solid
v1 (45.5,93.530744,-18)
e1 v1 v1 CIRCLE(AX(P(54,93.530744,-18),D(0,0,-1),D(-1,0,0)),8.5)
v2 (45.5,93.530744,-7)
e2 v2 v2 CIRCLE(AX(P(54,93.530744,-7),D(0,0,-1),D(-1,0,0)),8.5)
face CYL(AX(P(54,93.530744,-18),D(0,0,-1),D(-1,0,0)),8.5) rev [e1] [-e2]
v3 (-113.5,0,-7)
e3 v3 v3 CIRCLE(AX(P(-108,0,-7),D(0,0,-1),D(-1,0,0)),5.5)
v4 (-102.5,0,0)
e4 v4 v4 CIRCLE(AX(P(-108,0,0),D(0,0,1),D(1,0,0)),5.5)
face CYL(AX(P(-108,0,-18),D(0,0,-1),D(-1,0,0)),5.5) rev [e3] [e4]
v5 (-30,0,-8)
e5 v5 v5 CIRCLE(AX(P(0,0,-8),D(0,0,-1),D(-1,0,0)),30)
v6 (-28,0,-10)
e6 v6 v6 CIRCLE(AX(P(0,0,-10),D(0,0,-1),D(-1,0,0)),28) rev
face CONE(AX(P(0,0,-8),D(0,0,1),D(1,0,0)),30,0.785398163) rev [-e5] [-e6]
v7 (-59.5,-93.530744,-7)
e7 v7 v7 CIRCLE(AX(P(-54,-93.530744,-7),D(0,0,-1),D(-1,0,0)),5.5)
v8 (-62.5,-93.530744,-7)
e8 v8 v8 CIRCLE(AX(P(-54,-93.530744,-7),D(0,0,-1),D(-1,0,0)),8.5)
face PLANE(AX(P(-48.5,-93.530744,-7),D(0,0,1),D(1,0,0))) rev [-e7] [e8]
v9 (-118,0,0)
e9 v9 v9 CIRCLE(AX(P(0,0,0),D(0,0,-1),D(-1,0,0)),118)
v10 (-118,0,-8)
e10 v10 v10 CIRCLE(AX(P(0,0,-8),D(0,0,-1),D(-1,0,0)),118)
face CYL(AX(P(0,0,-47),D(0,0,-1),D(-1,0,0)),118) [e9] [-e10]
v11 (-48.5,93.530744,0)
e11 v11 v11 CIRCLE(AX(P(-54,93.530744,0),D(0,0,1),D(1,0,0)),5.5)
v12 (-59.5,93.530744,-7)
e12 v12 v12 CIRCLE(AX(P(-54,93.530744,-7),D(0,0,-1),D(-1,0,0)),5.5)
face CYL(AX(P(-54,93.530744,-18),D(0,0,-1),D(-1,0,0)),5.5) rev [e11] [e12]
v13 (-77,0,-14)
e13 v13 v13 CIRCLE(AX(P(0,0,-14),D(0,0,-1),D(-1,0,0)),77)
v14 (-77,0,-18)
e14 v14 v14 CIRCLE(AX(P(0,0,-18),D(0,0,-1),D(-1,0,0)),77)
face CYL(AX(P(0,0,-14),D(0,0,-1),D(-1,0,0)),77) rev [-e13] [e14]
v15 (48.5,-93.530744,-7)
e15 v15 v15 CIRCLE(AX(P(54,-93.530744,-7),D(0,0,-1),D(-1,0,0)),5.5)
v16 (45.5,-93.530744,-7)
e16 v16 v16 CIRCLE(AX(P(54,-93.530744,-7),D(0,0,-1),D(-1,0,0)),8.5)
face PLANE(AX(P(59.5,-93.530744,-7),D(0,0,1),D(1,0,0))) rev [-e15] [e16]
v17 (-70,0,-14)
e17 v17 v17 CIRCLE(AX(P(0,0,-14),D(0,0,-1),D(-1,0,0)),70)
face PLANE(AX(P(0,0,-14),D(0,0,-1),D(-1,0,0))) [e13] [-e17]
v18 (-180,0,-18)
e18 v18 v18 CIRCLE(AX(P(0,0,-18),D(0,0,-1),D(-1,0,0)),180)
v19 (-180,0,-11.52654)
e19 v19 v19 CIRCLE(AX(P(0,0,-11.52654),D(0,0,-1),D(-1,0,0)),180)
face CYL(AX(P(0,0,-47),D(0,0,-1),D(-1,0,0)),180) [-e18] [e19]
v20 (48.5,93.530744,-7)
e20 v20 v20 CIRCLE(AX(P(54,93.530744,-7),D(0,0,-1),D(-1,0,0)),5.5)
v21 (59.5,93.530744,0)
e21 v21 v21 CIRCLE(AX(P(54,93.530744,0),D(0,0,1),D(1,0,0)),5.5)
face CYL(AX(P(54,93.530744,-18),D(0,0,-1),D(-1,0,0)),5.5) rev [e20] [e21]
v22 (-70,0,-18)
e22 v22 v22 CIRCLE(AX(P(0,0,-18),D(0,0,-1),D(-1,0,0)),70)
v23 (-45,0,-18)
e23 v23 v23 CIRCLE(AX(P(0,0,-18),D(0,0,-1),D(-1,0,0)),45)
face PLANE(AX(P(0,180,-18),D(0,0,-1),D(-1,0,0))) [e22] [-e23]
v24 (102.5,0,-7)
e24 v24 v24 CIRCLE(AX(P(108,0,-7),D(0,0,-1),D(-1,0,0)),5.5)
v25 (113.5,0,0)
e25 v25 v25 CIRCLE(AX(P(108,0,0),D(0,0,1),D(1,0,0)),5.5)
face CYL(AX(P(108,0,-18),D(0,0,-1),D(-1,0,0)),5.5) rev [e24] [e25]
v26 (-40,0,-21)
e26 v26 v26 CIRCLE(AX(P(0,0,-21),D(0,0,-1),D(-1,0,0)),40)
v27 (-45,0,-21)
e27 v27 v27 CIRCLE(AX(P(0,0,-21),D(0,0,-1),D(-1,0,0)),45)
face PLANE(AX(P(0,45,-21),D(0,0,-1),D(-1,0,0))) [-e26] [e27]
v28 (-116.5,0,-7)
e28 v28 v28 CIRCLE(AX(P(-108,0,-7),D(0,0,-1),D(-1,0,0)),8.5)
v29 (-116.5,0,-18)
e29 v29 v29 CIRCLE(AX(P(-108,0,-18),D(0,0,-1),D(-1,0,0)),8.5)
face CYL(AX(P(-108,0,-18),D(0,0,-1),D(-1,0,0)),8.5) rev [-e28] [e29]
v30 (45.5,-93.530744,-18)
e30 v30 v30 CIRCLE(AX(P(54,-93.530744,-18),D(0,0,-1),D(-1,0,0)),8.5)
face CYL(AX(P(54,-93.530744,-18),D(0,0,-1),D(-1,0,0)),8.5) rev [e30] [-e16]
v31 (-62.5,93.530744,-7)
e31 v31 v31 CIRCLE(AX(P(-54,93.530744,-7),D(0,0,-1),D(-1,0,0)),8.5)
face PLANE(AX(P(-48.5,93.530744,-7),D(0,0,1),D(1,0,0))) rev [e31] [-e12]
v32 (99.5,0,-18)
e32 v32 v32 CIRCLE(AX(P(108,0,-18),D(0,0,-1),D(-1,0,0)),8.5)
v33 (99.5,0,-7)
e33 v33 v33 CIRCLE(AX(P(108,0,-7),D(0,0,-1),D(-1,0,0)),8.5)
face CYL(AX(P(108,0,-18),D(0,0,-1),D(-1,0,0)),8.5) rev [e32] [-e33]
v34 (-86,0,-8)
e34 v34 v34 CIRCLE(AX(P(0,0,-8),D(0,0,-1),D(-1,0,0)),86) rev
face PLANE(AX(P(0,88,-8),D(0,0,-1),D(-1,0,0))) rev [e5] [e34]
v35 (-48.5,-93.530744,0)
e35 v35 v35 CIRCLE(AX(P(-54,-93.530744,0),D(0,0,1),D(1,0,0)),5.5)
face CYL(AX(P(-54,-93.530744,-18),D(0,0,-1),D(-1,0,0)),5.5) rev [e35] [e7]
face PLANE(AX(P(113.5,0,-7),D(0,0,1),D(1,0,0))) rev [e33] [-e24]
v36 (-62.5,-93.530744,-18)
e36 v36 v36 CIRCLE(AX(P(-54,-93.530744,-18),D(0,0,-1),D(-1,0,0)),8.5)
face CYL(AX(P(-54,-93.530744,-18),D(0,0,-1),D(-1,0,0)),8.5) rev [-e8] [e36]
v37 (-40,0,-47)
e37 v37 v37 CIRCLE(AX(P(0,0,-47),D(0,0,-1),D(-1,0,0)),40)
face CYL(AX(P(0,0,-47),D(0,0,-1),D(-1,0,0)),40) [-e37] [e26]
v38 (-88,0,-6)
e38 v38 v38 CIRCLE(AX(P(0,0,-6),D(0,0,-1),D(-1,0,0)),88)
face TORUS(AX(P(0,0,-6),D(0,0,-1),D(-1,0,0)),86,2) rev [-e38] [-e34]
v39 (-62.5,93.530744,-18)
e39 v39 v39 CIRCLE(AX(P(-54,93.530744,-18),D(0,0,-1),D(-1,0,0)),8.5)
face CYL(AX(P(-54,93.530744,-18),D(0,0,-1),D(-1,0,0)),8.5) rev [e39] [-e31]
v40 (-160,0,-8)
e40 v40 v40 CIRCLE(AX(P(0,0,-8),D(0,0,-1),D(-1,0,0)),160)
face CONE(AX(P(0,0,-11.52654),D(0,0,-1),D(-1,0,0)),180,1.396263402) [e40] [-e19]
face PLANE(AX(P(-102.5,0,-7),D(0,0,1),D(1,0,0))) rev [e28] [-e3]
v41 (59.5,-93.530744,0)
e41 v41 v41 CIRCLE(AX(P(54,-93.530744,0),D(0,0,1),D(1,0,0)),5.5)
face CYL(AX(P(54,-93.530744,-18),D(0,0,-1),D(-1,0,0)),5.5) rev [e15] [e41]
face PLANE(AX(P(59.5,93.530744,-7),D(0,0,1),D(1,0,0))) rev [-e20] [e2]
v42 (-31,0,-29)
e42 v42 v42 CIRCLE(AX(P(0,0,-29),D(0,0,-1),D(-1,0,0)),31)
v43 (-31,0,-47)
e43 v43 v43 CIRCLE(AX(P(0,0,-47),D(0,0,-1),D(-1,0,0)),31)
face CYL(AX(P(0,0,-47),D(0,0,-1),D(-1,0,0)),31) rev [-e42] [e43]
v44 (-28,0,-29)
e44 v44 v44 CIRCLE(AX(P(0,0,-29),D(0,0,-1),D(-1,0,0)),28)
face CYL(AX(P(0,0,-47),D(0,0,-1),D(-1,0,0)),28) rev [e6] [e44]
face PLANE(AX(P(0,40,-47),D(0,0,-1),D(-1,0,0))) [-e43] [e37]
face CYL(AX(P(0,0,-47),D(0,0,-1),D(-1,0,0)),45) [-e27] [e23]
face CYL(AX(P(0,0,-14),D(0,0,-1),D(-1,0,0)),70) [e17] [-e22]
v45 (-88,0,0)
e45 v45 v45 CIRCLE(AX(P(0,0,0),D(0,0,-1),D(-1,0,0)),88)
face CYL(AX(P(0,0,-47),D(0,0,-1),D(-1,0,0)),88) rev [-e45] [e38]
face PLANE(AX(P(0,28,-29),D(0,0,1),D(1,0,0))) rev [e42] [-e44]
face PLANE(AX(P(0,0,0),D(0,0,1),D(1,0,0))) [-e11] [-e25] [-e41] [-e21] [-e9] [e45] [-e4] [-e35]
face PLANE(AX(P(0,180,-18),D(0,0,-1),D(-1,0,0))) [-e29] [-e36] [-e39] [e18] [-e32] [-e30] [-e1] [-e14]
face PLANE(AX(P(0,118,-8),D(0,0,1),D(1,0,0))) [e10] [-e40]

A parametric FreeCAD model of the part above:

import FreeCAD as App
import Part
import Sketcher
Q = App.Units.Quantity


def edges_at(feature, points):
    """Names of the edges that pass closest to the given points."""
    edges = feature.Shape.Edges
    near = lambda p: min(range(len(edges)), key=lambda i: edges[i].distToShape(Part.Vertex(*p))[0])
    return sorted({f"Edge{near(p) + 1}" for p in points})

doc = App.newDocument("Part")
body = doc.addObject("PartDesign::Body", "Body")

# Sketch on YZ plane
sketch1 = body.newObject("Sketcher::SketchObject", "Sketch")
sketch1.AttachmentSupport = (doc.getObject("YZ_Plane"), [""])
sketch1.MapMode = "FlatFace"
sketch1.addGeometry([
    Part.LineSegment(App.Vector(118, 0, 0), App.Vector(0, 0, 0)),  # 0
    Part.LineSegment(App.Vector(0, 0, 0), App.Vector(0, -47, 0)),  # 1
    Part.LineSegment(App.Vector(0, -47, 0), App.Vector(40, -47, 0)),  # 2
    Part.LineSegment(App.Vector(40, -47, 0), App.Vector(40, -21, 0)),  # 3
    Part.LineSegment(App.Vector(40, -21, 0), App.Vector(45, -21, 0)),  # 4
    Part.LineSegment(App.Vector(45, -21, 0), App.Vector(45, -18, 0)),  # 5
    Part.LineSegment(App.Vector(45, -18, 0), App.Vector(180, -18, 0)),  # 6
    Part.LineSegment(App.Vector(180, -18, 0), App.Vector(180, -11.52654, 0)),  # 7
    Part.LineSegment(App.Vector(180, -11.52654, 0), App.Vector(160, -8, 0)),  # 8
    Part.LineSegment(App.Vector(160, -8, 0), App.Vector(118, -8, 0)),  # 9
    Part.LineSegment(App.Vector(118, -8, 0), App.Vector(118, 0, 0)),  # 10
], False)
sketch1.addConstraint([
    Sketcher.Constraint("Coincident", 0, 2, 1, 1),
    Sketcher.Constraint("Coincident", 1, 2, 2, 1),
    Sketcher.Constraint("Coincident", 2, 2, 3, 1),
    Sketcher.Constraint("Coincident", 3, 2, 4, 1),
    Sketcher.Constraint("Coincident", 4, 2, 5, 1),
    Sketcher.Constraint("Coincident", 5, 2, 6, 1),
    Sketcher.Constraint("Coincident", 6, 2, 7, 1),
    Sketcher.Constraint("Coincident", 7, 2, 8, 1),
    Sketcher.Constraint("Coincident", 8, 2, 9, 1),
    Sketcher.Constraint("Coincident", 9, 2, 10, 1),
    Sketcher.Constraint("Coincident", 10, 2, 0, 1),
    Sketcher.Constraint("Horizontal", 0),
    Sketcher.Constraint("Vertical", 1),
    Sketcher.Constraint("Horizontal", 2),
    Sketcher.Constraint("Vertical", 3),
    Sketcher.Constraint("Horizontal", 4),
    Sketcher.Constraint("Vertical", 5),
    Sketcher.Constraint("Horizontal", 6),
    Sketcher.Constraint("Vertical", 7),
    Sketcher.Constraint("Horizontal", 9),
    Sketcher.Constraint("Vertical", 10),
    Sketcher.Constraint("Coincident", 0, 2, -1, 1),
    Sketcher.Constraint("DistanceX", 0, 2, 0, 1, 118.0),
    Sketcher.Constraint("DistanceX", 2, 1, 2, 2, 40.0),
    Sketcher.Constraint("DistanceX", 4, 1, 4, 2, 5.0),
    Sketcher.Constraint("DistanceX", 6, 1, 6, 2, 135.0),
    Sketcher.Constraint("DistanceX", 9, 2, 9, 1, 42.0),
    Sketcher.Constraint("DistanceY", 1, 2, 1, 1, 47.0),
    Sketcher.Constraint("DistanceY", 3, 1, 3, 2, 26.0),
    Sketcher.Constraint("DistanceY", 5, 1, 5, 2, 3.0),
    Sketcher.Constraint("DistanceY", 10, 1, 10, 2, 8.0),
    Sketcher.Constraint("Angle", 8, Q("170 deg")),
])
revolution = body.newObject("PartDesign::Revolution", "Revolution")
revolution.Profile = sketch1
revolution.ReferenceAxis = (sketch1, ["V_Axis"])
revolution.Angle = 360

# Sketch on YZ plane
sketch2 = body.newObject("Sketcher::SketchObject", "Sketch001")
sketch2.AttachmentSupport = (doc.getObject("YZ_Plane"), [""])
sketch2.MapMode = "FlatFace"
sketch2.addGeometry([
    Part.LineSegment(App.Vector(88, 0, 0), App.Vector(0, 0, 0)),  # 0
    Part.LineSegment(App.Vector(0, 0, 0), App.Vector(0, -47, 0)),  # 1
    Part.LineSegment(App.Vector(0, -47, 0), App.Vector(31, -47, 0)),  # 2
    Part.LineSegment(App.Vector(31, -47, 0), App.Vector(31, -29, 0)),  # 3
    Part.LineSegment(App.Vector(31, -29, 0), App.Vector(28, -29, 0)),  # 4
    Part.LineSegment(App.Vector(28, -29, 0), App.Vector(28, -8, 0)),  # 5
    Part.LineSegment(App.Vector(28, -8, 0), App.Vector(88, -8, 0)),  # 6
    Part.LineSegment(App.Vector(88, -8, 0), App.Vector(88, 0, 0)),  # 7
], False)
sketch2.addConstraint([
    Sketcher.Constraint("Coincident", 0, 2, 1, 1),
    Sketcher.Constraint("Coincident", 1, 2, 2, 1),
    Sketcher.Constraint("Coincident", 2, 2, 3, 1),
    Sketcher.Constraint("Coincident", 3, 2, 4, 1),
    Sketcher.Constraint("Coincident", 4, 2, 5, 1),
    Sketcher.Constraint("Coincident", 5, 2, 6, 1),
    Sketcher.Constraint("Coincident", 6, 2, 7, 1),
    Sketcher.Constraint("Coincident", 7, 2, 0, 1),
    Sketcher.Constraint("Horizontal", 0),
    Sketcher.Constraint("Vertical", 1),
    Sketcher.Constraint("Horizontal", 2),
    Sketcher.Constraint("Vertical", 3),
    Sketcher.Constraint("Horizontal", 4),
    Sketcher.Constraint("Vertical", 5),
    Sketcher.Constraint("Horizontal", 6),
    Sketcher.Constraint("Vertical", 7),
    Sketcher.Constraint("Coincident", 0, 2, -1, 1),
    Sketcher.Constraint("DistanceX", 0, 2, 0, 1, 88.0),
    Sketcher.Constraint("DistanceX", 2, 1, 2, 2, 31.0),
    Sketcher.Constraint("DistanceX", 4, 2, 4, 1, 3.0),
    Sketcher.Constraint("DistanceY", 1, 2, 1, 1, 47.0),
    Sketcher.Constraint("DistanceY", 3, 1, 3, 2, 18.0),
    Sketcher.Constraint("DistanceY", 5, 1, 5, 2, 21.0),
])
groove = body.newObject("PartDesign::Groove", "Groove")
groove.Profile = sketch2
groove.ReferenceAxis = (sketch2, ["V_Axis"])
groove.Angle = 360

# Sketch on XY plane
sketch3 = body.newObject("Sketcher::SketchObject", "Sketch002")
sketch3.AttachmentSupport = (doc.getObject("XY_Plane"), [""])
sketch3.MapMode = "FlatFace"
sketch3.AttachmentOffset = App.Placement(App.Vector(0, 0, -18), App.Rotation())
sketch3.addGeometry([
    Part.Circle(App.Vector(0, 0, 0), App.Vector(0, 0, 1), 77),
    Part.Circle(App.Vector(0, 0, 0), App.Vector(0, 0, 1), 70),
], False)
sketch3.addConstraint([
    Sketcher.Constraint("Coincident", 0, 3, -1, 1),
    Sketcher.Constraint("Coincident", 1, 3, -1, 1),
    Sketcher.Constraint("Diameter", 0, 154.0),
    Sketcher.Constraint("Diameter", 1, 140.0),
])
pocket1 = body.newObject("PartDesign::Pocket", "Pocket")
pocket1.Profile = sketch3
pocket1.Length = 4
pocket1.Reversed = True

# Sketch on XY plane
sketch4 = body.newObject("Sketcher::SketchObject", "Sketch003")
sketch4.AttachmentSupport = (doc.getObject("XY_Plane"), [""])
sketch4.MapMode = "FlatFace"
sketch4.AttachmentOffset = App.Placement(App.Vector(0, 0, -18), App.Rotation())
sketch4.addGeometry([
    Part.Circle(App.Vector(-54, 93.530744, 0), App.Vector(0, 0, 1), 5.5),  # 0
    Part.Circle(App.Vector(-108, 0, 0), App.Vector(0, 0, 1), 5.5),  # 1
    Part.Circle(App.Vector(-54, -93.530744, 0), App.Vector(0, 0, 1), 5.5),  # 2
    Part.Circle(App.Vector(54, -93.530744, 0), App.Vector(0, 0, 1), 5.5),  # 3
    Part.Circle(App.Vector(108, 0, 0), App.Vector(0, 0, 1), 5.5),  # 4
    Part.Circle(App.Vector(54, 93.530744, 0), App.Vector(0, 0, 1), 5.5),  # 5
], False)
sketch4.addConstraint([
    Sketcher.Constraint("Equal", 0, 1),
    Sketcher.Constraint("Equal", 1, 2),
    Sketcher.Constraint("Equal", 2, 3),
    Sketcher.Constraint("Equal", 3, 4),
    Sketcher.Constraint("Equal", 4, 5),
    Sketcher.Constraint("Symmetric", 0, 3, 3, 3, -1, 1),
    Sketcher.Constraint("Symmetric", 1, 3, 4, 3, -1, 1),
    Sketcher.Constraint("Symmetric", 2, 3, 5, 3, -1, 1),
    Sketcher.Constraint("Symmetric", 2, 3, 3, 3, -2),
    Sketcher.Constraint("PointOnObject", 1, 3, -1),
    Sketcher.Constraint("Diameter", 0, 11.0),
    Sketcher.Constraint("DistanceX", 0, 3, -1, 1, 54.0),
    Sketcher.Constraint("DistanceX", 1, 3, -1, 1, 108.0),
    Sketcher.Constraint("DistanceY", -1, 1, 0, 3, 93.530744),
])
doc.recompute()
hole = body.newObject("PartDesign::Hole", "Hole")
hole.Profile = sketch4
hole.ThreadType = "None"
hole.Diameter = 11
hole.DepthType = "ThroughAll"
hole.HoleCutType = "Counterbore"
hole.HoleCutDiameter = 17
hole.HoleCutDepth = 11
hole.Reversed = True
doc.recompute()

fillet = body.newObject("PartDesign::Fillet", "Fillet")
fillet.Base = (hole, edges_at(hole, [(88, 0, -8)]))
fillet.Radius = 2
doc.recompute()

chamfer = body.newObject("PartDesign::Chamfer", "Chamfer")
chamfer.Base = (fillet, edges_at(fillet, [(28, 0, -8)]))
chamfer.Size = 2

doc.recompute()
